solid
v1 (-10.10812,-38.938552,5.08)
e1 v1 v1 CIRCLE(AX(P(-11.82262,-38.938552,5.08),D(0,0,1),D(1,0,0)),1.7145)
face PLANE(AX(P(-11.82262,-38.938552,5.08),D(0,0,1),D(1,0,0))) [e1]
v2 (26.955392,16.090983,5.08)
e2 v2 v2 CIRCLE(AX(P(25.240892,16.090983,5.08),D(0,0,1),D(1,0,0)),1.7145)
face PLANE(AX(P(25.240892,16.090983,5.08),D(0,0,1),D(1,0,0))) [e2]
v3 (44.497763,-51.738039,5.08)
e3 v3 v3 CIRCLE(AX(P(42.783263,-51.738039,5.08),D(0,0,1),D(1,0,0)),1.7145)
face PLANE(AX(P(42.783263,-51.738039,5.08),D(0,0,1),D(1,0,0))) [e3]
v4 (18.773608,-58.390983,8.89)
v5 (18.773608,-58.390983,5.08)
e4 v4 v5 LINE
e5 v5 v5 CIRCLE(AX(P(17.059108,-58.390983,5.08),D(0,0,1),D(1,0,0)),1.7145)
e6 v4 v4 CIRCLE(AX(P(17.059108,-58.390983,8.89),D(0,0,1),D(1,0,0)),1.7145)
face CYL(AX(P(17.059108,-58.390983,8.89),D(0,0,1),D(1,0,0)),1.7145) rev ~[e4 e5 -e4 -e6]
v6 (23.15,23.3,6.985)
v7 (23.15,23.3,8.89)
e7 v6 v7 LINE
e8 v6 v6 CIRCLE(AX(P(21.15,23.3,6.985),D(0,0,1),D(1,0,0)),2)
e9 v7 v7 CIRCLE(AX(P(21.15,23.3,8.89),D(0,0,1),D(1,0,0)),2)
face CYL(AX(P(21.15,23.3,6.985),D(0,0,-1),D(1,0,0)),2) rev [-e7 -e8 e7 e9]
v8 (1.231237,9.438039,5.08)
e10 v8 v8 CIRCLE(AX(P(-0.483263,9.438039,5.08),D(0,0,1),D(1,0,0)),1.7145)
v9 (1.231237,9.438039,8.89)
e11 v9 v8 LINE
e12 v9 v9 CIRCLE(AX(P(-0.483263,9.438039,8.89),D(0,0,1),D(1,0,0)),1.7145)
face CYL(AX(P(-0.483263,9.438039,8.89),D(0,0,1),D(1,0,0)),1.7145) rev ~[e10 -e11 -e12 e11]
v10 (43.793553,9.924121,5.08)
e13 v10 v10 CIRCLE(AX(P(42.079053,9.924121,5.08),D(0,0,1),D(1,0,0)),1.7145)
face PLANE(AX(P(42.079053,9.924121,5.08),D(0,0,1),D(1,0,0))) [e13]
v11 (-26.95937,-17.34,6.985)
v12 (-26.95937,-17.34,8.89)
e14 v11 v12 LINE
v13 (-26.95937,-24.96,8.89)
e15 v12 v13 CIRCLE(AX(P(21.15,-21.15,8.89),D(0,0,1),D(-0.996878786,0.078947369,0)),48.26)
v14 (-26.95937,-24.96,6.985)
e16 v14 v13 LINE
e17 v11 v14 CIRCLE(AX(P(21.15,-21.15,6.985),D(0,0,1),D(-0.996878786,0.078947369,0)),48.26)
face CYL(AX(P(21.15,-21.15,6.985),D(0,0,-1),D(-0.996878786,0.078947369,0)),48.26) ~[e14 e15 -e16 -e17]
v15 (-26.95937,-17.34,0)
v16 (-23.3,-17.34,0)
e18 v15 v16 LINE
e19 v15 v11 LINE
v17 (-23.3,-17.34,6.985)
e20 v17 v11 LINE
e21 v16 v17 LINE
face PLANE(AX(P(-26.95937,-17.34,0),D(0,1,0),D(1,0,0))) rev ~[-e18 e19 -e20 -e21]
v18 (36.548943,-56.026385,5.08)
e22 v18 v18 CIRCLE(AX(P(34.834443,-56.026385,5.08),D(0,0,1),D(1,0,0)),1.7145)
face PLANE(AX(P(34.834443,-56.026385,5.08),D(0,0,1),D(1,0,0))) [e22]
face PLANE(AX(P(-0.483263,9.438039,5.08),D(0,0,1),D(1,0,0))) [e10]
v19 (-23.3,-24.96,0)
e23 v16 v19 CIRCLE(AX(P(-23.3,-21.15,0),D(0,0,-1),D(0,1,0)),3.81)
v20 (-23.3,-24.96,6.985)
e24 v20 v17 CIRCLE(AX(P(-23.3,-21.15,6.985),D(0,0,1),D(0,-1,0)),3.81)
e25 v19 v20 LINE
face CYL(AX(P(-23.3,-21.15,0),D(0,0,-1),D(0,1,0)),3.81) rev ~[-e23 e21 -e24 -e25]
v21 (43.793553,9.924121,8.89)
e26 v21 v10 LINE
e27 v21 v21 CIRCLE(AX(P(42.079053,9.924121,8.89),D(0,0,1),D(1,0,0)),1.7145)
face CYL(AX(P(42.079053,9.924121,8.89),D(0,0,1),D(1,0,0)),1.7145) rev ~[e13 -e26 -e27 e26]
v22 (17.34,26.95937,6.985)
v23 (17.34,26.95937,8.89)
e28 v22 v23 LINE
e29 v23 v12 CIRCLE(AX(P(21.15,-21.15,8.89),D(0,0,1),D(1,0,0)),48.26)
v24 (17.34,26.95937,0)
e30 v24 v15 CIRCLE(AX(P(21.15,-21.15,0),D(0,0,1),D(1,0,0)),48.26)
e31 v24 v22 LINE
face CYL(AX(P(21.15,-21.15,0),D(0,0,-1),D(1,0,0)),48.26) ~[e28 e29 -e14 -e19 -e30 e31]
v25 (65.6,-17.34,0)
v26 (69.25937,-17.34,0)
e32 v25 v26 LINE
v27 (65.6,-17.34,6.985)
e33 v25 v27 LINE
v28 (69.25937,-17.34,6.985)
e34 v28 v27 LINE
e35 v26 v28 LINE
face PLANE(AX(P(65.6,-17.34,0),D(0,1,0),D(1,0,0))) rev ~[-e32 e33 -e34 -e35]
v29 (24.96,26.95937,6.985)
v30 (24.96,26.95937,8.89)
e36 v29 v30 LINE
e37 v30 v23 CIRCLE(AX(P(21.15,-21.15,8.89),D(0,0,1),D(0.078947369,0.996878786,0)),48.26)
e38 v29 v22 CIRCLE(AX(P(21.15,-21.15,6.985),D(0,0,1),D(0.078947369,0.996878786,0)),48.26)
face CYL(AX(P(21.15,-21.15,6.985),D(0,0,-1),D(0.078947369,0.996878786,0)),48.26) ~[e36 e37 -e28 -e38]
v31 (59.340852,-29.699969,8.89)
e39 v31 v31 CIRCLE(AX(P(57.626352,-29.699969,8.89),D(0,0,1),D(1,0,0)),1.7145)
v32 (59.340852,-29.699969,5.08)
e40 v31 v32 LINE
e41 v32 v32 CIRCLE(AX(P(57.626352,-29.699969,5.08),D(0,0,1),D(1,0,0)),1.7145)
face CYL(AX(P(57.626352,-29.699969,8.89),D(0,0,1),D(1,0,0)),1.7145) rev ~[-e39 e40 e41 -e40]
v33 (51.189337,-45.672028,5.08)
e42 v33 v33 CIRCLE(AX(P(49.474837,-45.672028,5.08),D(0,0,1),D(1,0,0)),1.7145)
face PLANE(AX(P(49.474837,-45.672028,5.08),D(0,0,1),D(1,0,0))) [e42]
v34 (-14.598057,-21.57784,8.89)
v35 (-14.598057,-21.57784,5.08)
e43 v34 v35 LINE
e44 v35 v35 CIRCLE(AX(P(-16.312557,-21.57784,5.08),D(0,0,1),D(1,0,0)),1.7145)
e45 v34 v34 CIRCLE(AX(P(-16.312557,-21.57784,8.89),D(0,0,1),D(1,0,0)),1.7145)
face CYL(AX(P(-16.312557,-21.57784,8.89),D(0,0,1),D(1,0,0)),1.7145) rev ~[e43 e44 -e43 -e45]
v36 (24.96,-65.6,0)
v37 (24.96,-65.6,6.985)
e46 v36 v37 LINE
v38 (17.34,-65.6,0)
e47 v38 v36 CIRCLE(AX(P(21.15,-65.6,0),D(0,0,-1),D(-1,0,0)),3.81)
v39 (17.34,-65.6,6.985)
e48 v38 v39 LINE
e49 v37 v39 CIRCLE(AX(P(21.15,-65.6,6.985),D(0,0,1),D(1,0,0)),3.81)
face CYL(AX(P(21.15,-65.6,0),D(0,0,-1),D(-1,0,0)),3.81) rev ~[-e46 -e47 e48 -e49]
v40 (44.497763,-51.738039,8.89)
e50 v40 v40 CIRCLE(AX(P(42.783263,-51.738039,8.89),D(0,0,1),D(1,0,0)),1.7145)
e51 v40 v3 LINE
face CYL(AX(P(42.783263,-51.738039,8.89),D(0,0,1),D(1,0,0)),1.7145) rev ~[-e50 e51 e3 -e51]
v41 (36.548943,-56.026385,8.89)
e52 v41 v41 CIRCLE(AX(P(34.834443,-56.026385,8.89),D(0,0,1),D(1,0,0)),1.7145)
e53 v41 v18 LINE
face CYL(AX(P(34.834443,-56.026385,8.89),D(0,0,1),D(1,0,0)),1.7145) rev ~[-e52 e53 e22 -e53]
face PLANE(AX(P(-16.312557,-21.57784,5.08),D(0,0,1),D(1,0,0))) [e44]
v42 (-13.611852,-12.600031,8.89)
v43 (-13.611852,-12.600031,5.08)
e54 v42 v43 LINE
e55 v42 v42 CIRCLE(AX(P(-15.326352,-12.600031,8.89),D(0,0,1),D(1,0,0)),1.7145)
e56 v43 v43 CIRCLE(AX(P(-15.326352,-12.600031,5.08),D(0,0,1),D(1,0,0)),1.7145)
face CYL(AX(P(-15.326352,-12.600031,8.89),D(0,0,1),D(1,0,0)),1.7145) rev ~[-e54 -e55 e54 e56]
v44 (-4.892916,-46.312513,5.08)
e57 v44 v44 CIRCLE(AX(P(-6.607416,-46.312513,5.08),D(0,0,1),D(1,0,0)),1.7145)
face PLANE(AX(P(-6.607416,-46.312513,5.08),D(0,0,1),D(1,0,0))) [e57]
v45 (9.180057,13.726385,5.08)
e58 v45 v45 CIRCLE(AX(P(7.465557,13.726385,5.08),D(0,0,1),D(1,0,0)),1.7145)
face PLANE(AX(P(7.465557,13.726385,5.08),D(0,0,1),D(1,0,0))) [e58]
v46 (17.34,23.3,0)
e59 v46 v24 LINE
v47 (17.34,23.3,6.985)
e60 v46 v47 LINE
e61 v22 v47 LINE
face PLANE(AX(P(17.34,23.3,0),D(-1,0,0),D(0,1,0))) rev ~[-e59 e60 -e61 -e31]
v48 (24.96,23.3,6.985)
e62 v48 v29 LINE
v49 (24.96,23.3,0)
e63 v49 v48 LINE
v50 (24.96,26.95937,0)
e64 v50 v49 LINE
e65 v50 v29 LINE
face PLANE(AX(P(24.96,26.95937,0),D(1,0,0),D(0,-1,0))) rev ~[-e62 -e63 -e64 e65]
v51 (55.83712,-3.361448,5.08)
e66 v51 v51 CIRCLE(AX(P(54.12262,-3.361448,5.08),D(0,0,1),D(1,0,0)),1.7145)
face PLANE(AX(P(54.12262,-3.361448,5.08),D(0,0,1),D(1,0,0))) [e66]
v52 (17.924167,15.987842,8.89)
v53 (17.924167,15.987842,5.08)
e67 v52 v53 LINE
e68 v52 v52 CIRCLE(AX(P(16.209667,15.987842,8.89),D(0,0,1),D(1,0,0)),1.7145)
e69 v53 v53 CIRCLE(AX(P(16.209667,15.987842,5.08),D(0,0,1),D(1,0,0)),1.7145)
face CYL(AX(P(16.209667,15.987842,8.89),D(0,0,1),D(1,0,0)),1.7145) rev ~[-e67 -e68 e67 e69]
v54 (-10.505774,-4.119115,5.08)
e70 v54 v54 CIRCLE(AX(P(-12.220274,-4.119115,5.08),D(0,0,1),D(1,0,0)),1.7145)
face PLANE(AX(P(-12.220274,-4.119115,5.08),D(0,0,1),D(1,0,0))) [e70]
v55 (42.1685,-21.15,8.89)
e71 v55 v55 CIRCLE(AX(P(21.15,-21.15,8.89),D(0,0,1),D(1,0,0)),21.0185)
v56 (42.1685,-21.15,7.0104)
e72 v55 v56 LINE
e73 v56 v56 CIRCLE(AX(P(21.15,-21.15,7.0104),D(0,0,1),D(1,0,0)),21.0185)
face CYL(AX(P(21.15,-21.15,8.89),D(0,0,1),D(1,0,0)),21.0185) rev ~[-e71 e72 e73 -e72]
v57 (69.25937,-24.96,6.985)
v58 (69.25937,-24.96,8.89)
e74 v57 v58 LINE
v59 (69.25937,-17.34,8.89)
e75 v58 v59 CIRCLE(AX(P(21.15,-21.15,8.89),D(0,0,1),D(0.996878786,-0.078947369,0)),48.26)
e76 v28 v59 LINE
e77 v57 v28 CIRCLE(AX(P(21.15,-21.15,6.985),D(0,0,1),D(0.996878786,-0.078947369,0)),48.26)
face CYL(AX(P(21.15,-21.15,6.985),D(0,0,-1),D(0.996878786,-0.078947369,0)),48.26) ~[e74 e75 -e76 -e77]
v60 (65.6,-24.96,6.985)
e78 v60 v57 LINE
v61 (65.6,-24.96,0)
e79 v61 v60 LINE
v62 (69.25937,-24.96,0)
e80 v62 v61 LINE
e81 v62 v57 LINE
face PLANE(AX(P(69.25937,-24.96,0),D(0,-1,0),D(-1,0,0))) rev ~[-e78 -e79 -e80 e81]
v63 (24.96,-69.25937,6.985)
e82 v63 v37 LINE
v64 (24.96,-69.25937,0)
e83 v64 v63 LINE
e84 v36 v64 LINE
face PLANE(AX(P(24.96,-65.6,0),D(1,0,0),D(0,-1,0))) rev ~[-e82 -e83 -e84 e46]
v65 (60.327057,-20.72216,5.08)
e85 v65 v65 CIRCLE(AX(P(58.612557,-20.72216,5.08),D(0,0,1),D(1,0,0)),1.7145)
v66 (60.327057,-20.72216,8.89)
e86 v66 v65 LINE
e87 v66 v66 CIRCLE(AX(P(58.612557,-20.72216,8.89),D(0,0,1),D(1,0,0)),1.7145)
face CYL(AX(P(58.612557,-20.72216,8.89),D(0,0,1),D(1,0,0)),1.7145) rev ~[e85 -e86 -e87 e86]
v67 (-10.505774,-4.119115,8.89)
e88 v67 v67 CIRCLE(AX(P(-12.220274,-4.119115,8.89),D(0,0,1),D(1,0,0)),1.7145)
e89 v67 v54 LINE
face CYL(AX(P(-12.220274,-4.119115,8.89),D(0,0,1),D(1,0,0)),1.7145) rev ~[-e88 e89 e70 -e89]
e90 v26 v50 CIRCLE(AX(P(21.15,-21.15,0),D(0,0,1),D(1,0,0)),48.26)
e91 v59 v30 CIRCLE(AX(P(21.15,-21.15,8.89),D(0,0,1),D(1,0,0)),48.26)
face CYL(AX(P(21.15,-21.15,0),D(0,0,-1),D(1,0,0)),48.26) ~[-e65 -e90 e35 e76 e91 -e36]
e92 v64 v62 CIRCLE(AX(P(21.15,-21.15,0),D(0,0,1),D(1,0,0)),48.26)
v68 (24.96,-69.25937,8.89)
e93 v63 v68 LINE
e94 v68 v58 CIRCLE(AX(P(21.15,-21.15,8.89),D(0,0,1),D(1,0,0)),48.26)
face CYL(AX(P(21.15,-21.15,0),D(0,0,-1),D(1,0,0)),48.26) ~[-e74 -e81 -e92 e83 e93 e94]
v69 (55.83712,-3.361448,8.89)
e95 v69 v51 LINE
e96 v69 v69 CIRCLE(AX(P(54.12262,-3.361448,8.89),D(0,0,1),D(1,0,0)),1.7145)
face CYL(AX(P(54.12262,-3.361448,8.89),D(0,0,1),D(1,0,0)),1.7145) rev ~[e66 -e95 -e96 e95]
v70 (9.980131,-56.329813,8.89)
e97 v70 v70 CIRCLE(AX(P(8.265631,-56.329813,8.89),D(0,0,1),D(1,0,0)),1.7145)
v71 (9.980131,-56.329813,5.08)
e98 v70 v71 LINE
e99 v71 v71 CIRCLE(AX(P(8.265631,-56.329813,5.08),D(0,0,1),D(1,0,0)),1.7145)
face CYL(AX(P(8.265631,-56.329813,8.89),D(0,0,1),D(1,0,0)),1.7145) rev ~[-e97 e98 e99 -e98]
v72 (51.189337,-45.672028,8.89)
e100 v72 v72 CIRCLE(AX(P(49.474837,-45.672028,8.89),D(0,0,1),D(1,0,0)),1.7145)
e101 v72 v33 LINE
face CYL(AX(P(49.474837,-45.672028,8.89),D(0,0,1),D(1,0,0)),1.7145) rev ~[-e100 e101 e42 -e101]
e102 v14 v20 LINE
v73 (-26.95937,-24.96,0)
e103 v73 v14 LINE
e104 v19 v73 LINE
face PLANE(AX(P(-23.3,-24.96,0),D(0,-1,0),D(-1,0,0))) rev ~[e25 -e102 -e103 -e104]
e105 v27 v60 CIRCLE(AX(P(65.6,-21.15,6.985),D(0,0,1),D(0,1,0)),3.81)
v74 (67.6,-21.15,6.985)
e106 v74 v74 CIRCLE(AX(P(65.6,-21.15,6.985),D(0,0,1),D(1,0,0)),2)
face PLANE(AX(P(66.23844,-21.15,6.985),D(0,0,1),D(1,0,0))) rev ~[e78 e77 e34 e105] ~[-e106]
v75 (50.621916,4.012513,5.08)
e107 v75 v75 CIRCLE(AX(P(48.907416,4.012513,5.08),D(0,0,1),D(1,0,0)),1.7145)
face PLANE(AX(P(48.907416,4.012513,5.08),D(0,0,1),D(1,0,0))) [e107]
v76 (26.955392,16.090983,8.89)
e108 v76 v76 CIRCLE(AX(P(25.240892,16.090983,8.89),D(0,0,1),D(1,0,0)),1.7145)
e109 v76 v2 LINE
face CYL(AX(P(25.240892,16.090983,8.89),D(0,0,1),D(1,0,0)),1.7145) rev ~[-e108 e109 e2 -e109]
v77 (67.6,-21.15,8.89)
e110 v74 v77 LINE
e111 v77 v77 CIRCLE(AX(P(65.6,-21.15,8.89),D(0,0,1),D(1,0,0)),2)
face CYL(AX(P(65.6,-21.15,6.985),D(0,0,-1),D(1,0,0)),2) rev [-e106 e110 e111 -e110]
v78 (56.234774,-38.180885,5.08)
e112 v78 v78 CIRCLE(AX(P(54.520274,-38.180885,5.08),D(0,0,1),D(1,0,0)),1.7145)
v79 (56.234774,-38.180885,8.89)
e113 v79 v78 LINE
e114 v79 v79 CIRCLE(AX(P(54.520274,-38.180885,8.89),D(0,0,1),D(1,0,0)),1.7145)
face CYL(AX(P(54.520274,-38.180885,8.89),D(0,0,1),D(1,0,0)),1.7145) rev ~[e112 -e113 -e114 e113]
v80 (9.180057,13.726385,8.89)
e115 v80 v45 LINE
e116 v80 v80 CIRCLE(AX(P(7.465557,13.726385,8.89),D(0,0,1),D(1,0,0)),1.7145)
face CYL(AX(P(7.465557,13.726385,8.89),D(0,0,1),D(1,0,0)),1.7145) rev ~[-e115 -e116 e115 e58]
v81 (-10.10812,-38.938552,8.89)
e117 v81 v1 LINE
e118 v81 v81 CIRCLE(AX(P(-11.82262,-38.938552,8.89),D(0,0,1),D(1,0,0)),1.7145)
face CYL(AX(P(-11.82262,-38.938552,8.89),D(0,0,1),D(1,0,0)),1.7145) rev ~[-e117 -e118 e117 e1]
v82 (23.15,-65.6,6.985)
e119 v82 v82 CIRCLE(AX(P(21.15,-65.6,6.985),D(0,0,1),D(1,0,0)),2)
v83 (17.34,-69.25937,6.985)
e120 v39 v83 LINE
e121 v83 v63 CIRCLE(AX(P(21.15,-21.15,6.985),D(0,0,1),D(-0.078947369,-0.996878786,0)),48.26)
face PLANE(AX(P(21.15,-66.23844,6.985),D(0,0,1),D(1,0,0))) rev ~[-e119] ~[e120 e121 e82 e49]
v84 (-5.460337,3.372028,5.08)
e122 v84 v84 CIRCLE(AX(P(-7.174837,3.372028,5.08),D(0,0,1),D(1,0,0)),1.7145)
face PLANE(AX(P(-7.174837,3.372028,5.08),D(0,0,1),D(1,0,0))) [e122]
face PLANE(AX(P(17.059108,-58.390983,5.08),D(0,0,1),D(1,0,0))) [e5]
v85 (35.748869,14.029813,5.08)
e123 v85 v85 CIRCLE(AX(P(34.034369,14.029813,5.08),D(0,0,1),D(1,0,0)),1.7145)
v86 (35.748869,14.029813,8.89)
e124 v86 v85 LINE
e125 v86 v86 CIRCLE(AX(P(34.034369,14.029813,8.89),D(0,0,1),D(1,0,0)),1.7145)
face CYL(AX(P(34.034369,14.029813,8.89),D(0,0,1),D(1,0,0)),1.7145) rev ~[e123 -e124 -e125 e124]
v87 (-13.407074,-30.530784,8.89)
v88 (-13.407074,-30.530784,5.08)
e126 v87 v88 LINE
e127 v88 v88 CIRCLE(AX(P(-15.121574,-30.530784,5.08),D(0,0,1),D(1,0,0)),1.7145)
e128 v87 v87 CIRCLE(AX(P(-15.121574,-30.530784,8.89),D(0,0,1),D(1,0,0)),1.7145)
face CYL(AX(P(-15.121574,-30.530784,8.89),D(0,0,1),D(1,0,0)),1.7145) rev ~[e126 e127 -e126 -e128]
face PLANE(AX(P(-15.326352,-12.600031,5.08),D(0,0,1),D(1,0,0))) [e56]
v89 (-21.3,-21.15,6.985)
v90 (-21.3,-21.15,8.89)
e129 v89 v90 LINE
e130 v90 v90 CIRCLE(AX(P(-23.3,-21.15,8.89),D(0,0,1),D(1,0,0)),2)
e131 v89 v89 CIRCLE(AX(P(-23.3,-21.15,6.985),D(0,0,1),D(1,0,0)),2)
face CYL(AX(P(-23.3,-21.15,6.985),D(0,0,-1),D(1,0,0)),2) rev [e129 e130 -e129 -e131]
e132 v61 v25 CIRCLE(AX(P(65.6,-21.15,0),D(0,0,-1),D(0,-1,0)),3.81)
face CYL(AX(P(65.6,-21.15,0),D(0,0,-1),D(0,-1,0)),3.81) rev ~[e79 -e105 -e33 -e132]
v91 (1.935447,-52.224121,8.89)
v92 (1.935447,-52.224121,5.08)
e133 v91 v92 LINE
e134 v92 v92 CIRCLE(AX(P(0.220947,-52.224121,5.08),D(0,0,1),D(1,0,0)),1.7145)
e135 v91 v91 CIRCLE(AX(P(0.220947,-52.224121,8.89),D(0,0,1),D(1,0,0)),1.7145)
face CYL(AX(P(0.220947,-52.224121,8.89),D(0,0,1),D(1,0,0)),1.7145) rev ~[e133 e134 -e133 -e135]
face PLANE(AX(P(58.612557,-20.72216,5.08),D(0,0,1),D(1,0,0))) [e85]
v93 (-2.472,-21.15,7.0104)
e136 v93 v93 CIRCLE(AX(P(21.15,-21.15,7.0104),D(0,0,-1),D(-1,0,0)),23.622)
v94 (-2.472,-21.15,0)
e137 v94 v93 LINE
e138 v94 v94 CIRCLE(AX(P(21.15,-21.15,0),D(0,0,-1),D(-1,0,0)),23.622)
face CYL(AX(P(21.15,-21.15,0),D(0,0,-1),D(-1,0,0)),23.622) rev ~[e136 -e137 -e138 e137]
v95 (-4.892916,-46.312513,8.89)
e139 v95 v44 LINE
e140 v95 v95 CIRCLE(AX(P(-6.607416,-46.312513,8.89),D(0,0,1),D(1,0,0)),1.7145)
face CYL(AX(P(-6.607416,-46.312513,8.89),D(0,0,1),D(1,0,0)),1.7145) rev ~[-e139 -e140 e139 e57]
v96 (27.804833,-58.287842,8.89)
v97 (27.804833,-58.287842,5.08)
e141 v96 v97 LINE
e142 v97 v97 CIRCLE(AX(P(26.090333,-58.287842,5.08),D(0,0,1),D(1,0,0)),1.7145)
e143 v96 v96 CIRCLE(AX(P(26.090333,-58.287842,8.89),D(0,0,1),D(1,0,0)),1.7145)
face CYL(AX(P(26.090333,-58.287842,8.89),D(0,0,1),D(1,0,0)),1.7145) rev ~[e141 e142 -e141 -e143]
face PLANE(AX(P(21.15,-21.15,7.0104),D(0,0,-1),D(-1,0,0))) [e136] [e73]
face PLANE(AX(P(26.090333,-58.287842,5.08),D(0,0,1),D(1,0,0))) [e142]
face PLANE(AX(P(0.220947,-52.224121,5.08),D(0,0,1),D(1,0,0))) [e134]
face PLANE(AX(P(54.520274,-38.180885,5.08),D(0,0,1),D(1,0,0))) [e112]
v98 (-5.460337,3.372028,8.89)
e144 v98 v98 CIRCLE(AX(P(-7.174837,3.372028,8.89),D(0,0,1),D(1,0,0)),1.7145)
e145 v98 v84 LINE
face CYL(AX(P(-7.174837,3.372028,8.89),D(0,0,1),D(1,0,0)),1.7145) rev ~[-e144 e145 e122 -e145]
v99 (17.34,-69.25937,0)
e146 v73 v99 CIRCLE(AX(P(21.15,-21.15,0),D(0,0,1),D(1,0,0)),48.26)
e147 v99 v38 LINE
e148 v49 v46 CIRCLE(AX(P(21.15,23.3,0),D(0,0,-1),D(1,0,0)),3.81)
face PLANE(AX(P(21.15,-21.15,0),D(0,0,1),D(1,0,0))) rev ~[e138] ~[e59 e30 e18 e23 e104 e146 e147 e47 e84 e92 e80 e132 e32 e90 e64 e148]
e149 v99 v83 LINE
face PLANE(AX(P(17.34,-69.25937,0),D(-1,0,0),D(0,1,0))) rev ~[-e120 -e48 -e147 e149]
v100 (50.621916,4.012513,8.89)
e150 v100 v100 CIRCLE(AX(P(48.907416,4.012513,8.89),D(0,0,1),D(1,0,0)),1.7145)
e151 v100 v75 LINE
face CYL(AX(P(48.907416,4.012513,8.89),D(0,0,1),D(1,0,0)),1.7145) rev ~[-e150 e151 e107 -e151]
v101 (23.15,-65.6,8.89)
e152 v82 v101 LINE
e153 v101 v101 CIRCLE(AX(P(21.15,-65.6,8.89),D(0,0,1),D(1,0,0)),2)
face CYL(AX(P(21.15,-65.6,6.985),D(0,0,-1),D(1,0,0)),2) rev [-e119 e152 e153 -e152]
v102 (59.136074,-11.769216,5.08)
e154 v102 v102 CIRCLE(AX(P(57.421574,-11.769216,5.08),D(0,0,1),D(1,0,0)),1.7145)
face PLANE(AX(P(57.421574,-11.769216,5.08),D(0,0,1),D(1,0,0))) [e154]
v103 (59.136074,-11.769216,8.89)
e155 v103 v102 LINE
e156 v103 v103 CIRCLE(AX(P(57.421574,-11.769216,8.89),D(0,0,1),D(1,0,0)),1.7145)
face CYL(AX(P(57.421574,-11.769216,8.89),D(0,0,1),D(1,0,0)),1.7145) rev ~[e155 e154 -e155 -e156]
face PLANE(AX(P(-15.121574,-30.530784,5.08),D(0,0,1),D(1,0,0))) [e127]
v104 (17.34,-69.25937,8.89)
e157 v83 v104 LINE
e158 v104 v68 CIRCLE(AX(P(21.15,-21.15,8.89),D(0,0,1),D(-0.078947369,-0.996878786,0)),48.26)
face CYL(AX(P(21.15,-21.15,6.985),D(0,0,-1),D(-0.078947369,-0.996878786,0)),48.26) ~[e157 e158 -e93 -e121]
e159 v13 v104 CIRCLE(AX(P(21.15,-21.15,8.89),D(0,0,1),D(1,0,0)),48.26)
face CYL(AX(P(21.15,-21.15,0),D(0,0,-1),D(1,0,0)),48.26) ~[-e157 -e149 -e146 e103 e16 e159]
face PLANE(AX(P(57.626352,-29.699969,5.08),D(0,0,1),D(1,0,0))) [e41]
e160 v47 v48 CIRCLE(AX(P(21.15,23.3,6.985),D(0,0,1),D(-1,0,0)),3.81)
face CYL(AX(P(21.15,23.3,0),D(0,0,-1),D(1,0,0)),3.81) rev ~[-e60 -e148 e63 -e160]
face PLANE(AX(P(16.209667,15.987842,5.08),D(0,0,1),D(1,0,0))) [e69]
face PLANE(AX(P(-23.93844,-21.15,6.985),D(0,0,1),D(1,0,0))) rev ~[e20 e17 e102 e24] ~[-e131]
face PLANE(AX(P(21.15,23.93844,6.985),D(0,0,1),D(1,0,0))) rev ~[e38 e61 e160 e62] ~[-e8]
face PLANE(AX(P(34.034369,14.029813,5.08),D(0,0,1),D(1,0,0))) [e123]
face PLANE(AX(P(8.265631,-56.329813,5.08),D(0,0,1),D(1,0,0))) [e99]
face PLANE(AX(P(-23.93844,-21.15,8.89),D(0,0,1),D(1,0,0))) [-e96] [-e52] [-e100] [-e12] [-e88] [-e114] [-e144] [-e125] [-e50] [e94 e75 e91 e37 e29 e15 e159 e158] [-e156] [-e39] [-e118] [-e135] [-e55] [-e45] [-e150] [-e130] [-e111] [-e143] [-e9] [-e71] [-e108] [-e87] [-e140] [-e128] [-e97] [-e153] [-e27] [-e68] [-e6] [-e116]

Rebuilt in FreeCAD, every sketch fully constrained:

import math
import FreeCAD as App
import Part
import Sketcher
Q = App.Units.Quantity

doc = App.newDocument("Part")
body = doc.addObject("PartDesign::Body", "Body")

# Sketch on XY plane
sketch1 = body.newObject("Sketcher::SketchObject", "Sketch")
sketch1.AttachmentSupport = (doc.getObject("XY_Plane"), [""])
sketch1.MapMode = "FlatFace"
sketch1.addGeometry(Part.Circle(App.Vector(21, -21, 0), App.Vector(0, 0, 1), 48), False)
sketch1.addConstraint(Sketcher.Constraint("Diameter", 0, Q("3.8 in")))
sketch1.addConstraint(Sketcher.Constraint("DistanceX", -1, 1, 0, 3, 21.15))
sketch1.addConstraint(Sketcher.Constraint("DistanceY", 0, 3, -1, 1, 21.15))
pad1 = body.newObject("PartDesign::Pad", "Pad")
pad1.Profile = sketch1
pad1.Length = Q("0.35 in")

# Sketch on XY plane
sketch2 = body.newObject("Sketcher::SketchObject", "Sketch001")
sketch2.AttachmentSupport = (doc.getObject("XY_Plane"), [""])
sketch2.MapMode = "FlatFace"
sketch2.AttachmentOffset = App.Placement(App.Vector(0, 0, 0.35 * 25.4), App.Rotation())
sketch2.addGeometry(Part.Circle(App.Vector(25.2, 16.1, 0), App.Vector(0, 0, 1), 1.7), False)
sketch2.addGeometry(Part.Circle(App.Vector(34, 14, 0), App.Vector(0, 0, 1), 1.7), False)
sketch2.addGeometry(Part.Circle(App.Vector(42.1, 9.9, 0), App.Vector(0, 0, 1), 1.7), False)
sketch2.addGeometry(Part.Circle(App.Vector(48.9, 4, 0), App.Vector(0, 0, 1), 1.7), False)
sketch2.addGeometry(Part.Circle(App.Vector(54.1, -3.4, 0), App.Vector(0, 0, 1), 1.7), False)
sketch2.addGeometry(Part.Circle(App.Vector(57.4, -11.8, 0), App.Vector(0, 0, 1), 1.7), False)
sketch2.addGeometry(Part.Circle(App.Vector(58.6, -20.7, 0), App.Vector(0, 0, 1), 1.7), False)
sketch2.addGeometry(Part.Circle(App.Vector(57.6, -29.7, 0), App.Vector(0, 0, 1), 1.7), False)
sketch2.addGeometry(Part.Circle(App.Vector(54.5, -38.2, 0), App.Vector(0, 0, 1), 1.7), False)
sketch2.addGeometry(Part.Circle(App.Vector(49.5, -45.7, 0), App.Vector(0, 0, 1), 1.7), False)
sketch2.addGeometry(Part.Circle(App.Vector(42.8, -51.7, 0), App.Vector(0, 0, 1), 1.7), False)
sketch2.addGeometry(Part.Circle(App.Vector(34.8, -56, 0), App.Vector(0, 0, 1), 1.7), False)
sketch2.addGeometry(Part.Circle(App.Vector(26.1, -58.3, 0), App.Vector(0, 0, 1), 1.7), False)
sketch2.addGeometry(Part.Circle(App.Vector(17.1, -58.4, 0), App.Vector(0, 0, 1), 1.7), False)
sketch2.addGeometry(Part.Circle(App.Vector(8.3, -56.3, 0), App.Vector(0, 0, 1), 1.7), False)
sketch2.addGeometry(Part.Circle(App.Vector(0.2, -52.2, 0), App.Vector(0, 0, 1), 1.7), False)
sketch2.addGeometry(Part.Circle(App.Vector(-6.6, -46.3, 0), App.Vector(0, 0, 1), 1.7), False)
sketch2.addGeometry(Part.Circle(App.Vector(-11.8, -38.9, 0), App.Vector(0, 0, 1), 1.7), False)
sketch2.addGeometry(Part.Circle(App.Vector(-15.1, -30.5, 0), App.Vector(0, 0, 1), 1.7), False)
sketch2.addGeometry(Part.Circle(App.Vector(-16.3, -21.6, 0), App.Vector(0, 0, 1), 1.7), False)
sketch2.addGeometry(Part.Circle(App.Vector(-15.3, -12.6, 0), App.Vector(0, 0, 1), 1.7), False)
sketch2.addGeometry(Part.Circle(App.Vector(-12.2, -4.1, 0), App.Vector(0, 0, 1), 1.7), False)
sketch2.addGeometry(Part.Circle(App.Vector(-7.2, 3.4, 0), App.Vector(0, 0, 1), 1.7), False)
sketch2.addGeometry(Part.Circle(App.Vector(-0.5, 9.4, 0), App.Vector(0, 0, 1), 1.7), False)
sketch2.addGeometry(Part.Circle(App.Vector(7.5, 13.7, 0), App.Vector(0, 0, 1), 1.7), False)
sketch2.addGeometry(Part.Circle(App.Vector(16.2, 16, 0), App.Vector(0, 0, 1), 1.7), False)
sketch2.addConstraint(Sketcher.Constraint("Equal", 0, 1))
sketch2.addConstraint(Sketcher.Constraint("Equal", 1, 2))
sketch2.addConstraint(Sketcher.Constraint("Equal", 2, 3))
sketch2.addConstraint(Sketcher.Constraint("Equal", 3, 4))
sketch2.addConstraint(Sketcher.Constraint("Equal", 4, 5))
sketch2.addConstraint(Sketcher.Constraint("Equal", 5, 6))
sketch2.addConstraint(Sketcher.Constraint("Equal", 6, 7))
sketch2.addConstraint(Sketcher.Constraint("Equal", 7, 8))
sketch2.addConstraint(Sketcher.Constraint("Equal", 8, 9))
sketch2.addConstraint(Sketcher.Constraint("Equal", 9, 10))
sketch2.addConstraint(Sketcher.Constraint("Equal", 10, 11))
sketch2.addConstraint(Sketcher.Constraint("Equal", 11, 12))
sketch2.addConstraint(Sketcher.Constraint("Equal", 12, 13))
sketch2.addConstraint(Sketcher.Constraint("Equal", 13, 14))
sketch2.addConstraint(Sketcher.Constraint("Equal", 14, 15))
sketch2.addConstraint(Sketcher.Constraint("Equal", 15, 16))
sketch2.addConstraint(Sketcher.Constraint("Equal", 16, 17))
sketch2.addConstraint(Sketcher.Constraint("Equal", 17, 18))
sketch2.addConstraint(Sketcher.Constraint("Equal", 18, 19))
sketch2.addConstraint(Sketcher.Constraint("Equal", 19, 20))
sketch2.addConstraint(Sketcher.Constraint("Equal", 20, 21))
sketch2.addConstraint(Sketcher.Constraint("Equal", 21, 22))
sketch2.addConstraint(Sketcher.Constraint("Equal", 22, 23))
sketch2.addConstraint(Sketcher.Constraint("Equal", 23, 24))
sketch2.addConstraint(Sketcher.Constraint("Equal", 24, 25))
sketch2.addConstraint(Sketcher.Constraint("Diameter", 0, Q("0.135 in")))
sketch2.addConstraint(Sketcher.Constraint("DistanceX", 0, 3, 1, 3, Q("0.3461999 in")))
sketch2.addConstraint(Sketcher.Constraint("DistanceX", 14, 3, 13, 3, Q("0.3461999 in")))
sketch2.addConstraint(Sketcher.Constraint("DistanceY", 3, 3, 1, 3, 10.0173))
sketch2.addConstraint(Sketcher.Constraint("DistanceY", 5, 3, 0, 3, 27.860199))
sketch2.addConstraint(Sketcher.Constraint("DistanceX", 2, 3, 7, 3, 15.547299))
sketch2.addConstraint(Sketcher.Constraint("DistanceX", 8, 3, 5, 3, 2.901301))
sketch2.addConstraint(Sketcher.Constraint("DistanceY", 8, 3, 3, 3, 42.193398))
sketch2.addConstraint(Sketcher.Constraint("DistanceY", 11, 3, 8, 3, 17.8455))
sketch2.addConstraint(Sketcher.Constraint("DistanceY", 13, 3, 8, 3, 20.210098))
sketch2.addConstraint(Sketcher.Constraint("DistanceX", 14, 3, 12, 3, 17.824701))
sketch2.addConstraint(Sketcher.Constraint("DistanceY", 14, 3, 16, 3, 10.0173))
sketch2.addConstraint(Sketcher.Constraint("DistanceY", 13, 3, 18, 3, 27.860199))
sketch2.addConstraint(Sketcher.Constraint("DistanceX", 20, 3, 15, 3, 15.547299))
sketch2.addConstraint(Sketcher.Constraint("DistanceX", 18, 3, 21, 3, 2.901301))
sketch2.addConstraint(Sketcher.Constraint("DistanceY", 16, 3, 21, 3, 42.193398))
sketch2.addConstraint(Sketcher.Constraint("DistanceY", 21, 3, 24, 3, 17.8455))
sketch2.addConstraint(Sketcher.Constraint("DistanceX", 25, 3, 1, 3, 17.824701))
sketch2.addConstraint(Sketcher.Constraint("DistanceX", -1, 1, 0, 3, 25.240892))
sketch2.addConstraint(Sketcher.Constraint("DistanceY", -1, 1, 2, 3, 9.924121))
sketch2.addConstraint(Sketcher.Constraint("DistanceX", -1, 1, 4, 3, 54.12262))
sketch2.addConstraint(Sketcher.Constraint("DistanceY", 4, 3, -1, 1, 3.361448))
sketch2.addConstraint(Sketcher.Constraint("DistanceY", 6, 3, -1, 1, 20.72216))
sketch2.addConstraint(Sketcher.Constraint("DistanceX", -1, 1, 7, 3, 57.626352))
sketch2.addConstraint(Sketcher.Constraint("DistanceY", 7, 3, -1, 1, 29.699969))
sketch2.addConstraint(Sketcher.Constraint("DistanceY", 10, 3, -1, 1, 51.738039))
sketch2.addConstraint(Sketcher.Constraint("DistanceX", -1, 1, 13, 3, 17.059108))
sketch2.addConstraint(Sketcher.Constraint("DistanceY", 15, 3, -1, 1, 52.224121))
sketch2.addConstraint(Sketcher.Constraint("DistanceX", 17, 3, -1, 1, 11.82262))
sketch2.addConstraint(Sketcher.Constraint("DistanceY", 17, 3, -1, 1, 38.938552))
sketch2.addConstraint(Sketcher.Constraint("DistanceY", 19, 3, -1, 1, 21.57784))
sketch2.addConstraint(Sketcher.Constraint("DistanceX", 20, 3, -1, 1, 15.326352))
sketch2.addConstraint(Sketcher.Constraint("DistanceY", 20, 3, -1, 1, 12.600031))
sketch2.addConstraint(Sketcher.Constraint("DistanceY", -1, 1, 23, 3, 9.438039))
sketch2.addConstraint(Sketcher.Constraint("DistanceY", 1, 3, 0, 3, 2.06117))
sketch2.addConstraint(Sketcher.Constraint("DistanceY", 4, 3, 3, 3, 7.373961))
sketch2.addConstraint(Sketcher.Constraint("DistanceX", 3, 3, 5, 3, 8.514158))
sketch2.addConstraint(Sketcher.Constraint("DistanceX", 2, 3, 5, 3, 15.342522))
sketch2.addConstraint(Sketcher.Constraint("DistanceX", 3, 3, 6, 3, 9.705141))
sketch2.addConstraint(Sketcher.Constraint("DistanceY", 9, 3, 7, 3, 15.972059))
sketch2.addConstraint(Sketcher.Constraint("DistanceX", 9, 3, 6, 3, 9.13772))
sketch2.addConstraint(Sketcher.Constraint("DistanceX", 10, 3, 8, 3, 11.737011))
sketch2.addConstraint(Sketcher.Constraint("DistanceX", 11, 3, 10, 3, 7.94882))
sketch2.addConstraint(Sketcher.Constraint("DistanceY", 13, 3, 12, 3, 0.103141))
sketch2.addConstraint(Sketcher.Constraint("DistanceY", 13, 3, 14, 3, 2.06117))
sketch2.addConstraint(Sketcher.Constraint("DistanceX", 16, 3, 12, 3, 32.697749))
sketch2.addConstraint(Sketcher.Constraint("DistanceX", 18, 3, 16, 3, 8.514158))
sketch2.addConstraint(Sketcher.Constraint("DistanceX", 19, 3, 16, 3, 9.705141))
sketch2.addConstraint(Sketcher.Constraint("DistanceY", 20, 3, 22, 3, 15.972059))
sketch2.addConstraint(Sketcher.Constraint("DistanceX", 19, 3, 22, 3, 9.13772))
sketch2.addConstraint(Sketcher.Constraint("DistanceX", 21, 3, 23, 3, 11.737011))
sketch2.addConstraint(Sketcher.Constraint("DistanceX", 23, 3, 24, 3, 7.94882))
sketch2.addConstraint(Sketcher.Constraint("DistanceY", 25, 3, 0, 3, 0.103141))
pocket1 = body.newObject("PartDesign::Pocket", "Pocket")
pocket1.Profile = sketch2
pocket1.Length = Q("0.15 in")

# Sketch on XY plane
sketch3 = body.newObject("Sketcher::SketchObject", "Sketch002")
sketch3.AttachmentSupport = (doc.getObject("XY_Plane"), [""])
sketch3.MapMode = "FlatFace"
sketch3.AttachmentOffset = App.Placement(App.Vector(0, 0, 0.35 * 25.4), App.Rotation())
sketch3.addGeometry(Part.Circle(App.Vector(21, -21, 0), App.Vector(0, 0, 1), 21), False)
sketch3.addConstraint(Sketcher.Constraint("Diameter", 0, Q("1.655 in")))
sketch3.addConstraint(Sketcher.Constraint("DistanceX", -1, 1, 0, 3, 21.15))
sketch3.addConstraint(Sketcher.Constraint("DistanceY", 0, 3, -1, 1, 21.15))
pocket2 = body.newObject("PartDesign::Pocket", "Pocket001")
pocket2.Profile = sketch3
pocket2.Length = Q("0.35 in")

# Sketch on XY plane
sketch4 = body.newObject("Sketcher::SketchObject", "Sketch003")
sketch4.AttachmentSupport = (doc.getObject("XY_Plane"), [""])
sketch4.MapMode = "FlatFace"
sketch4.addGeometry(Part.ArcOfCircle(Part.Circle(App.Vector(21.1, 23.3, 0), App.Vector(0, 0, 1), 3.8), math.radians(180), math.radians(360)), False)
sketch4.addGeometry(Part.LineSegment(App.Vector(17.3, 23.3, 0), App.Vector(17.3, 27, 0)), False)
sketch4.addGeometry(Part.ArcOfCircle(Part.Circle(App.Vector(21.1, -21.1, 0), App.Vector(0, 0, 1), 48.3), math.radians(85.47), math.radians(94.53)), False)
sketch4.addGeometry(Part.LineSegment(App.Vector(25, 27, 0), App.Vector(25, 23.3, 0)), False)
sketch4.addGeometry(Part.LineSegment(App.Vector(65.6, -17.3, 0), App.Vector(69.3, -17.3, 0)), False)
sketch4.addGeometry(Part.ArcOfCircle(Part.Circle(App.Vector(21.2, -21.1, 0), App.Vector(0, 0, 1), 48.3), math.radians(-4.53), math.radians(4.53)), False)
sketch4.addGeometry(Part.LineSegment(App.Vector(69.3, -25, 0), App.Vector(65.6, -25, 0)), False)
sketch4.addGeometry(Part.ArcOfCircle(Part.Circle(App.Vector(65.6, -21.1, 0), App.Vector(0, 0, 1), 3.8), math.radians(90), math.radians(270)), False)
sketch4.addGeometry(Part.LineSegment(App.Vector(25, -65.6, 0), App.Vector(25, -69.3, 0)), False)
sketch4.addGeometry(Part.ArcOfCircle(Part.Circle(App.Vector(21.1, -21.2, 0), App.Vector(0, 0, 1), 48.3), math.radians(-94.53), math.radians(-85.47)), False)
sketch4.addGeometry(Part.LineSegment(App.Vector(17.3, -69.3, 0), App.Vector(17.3, -65.6, 0)), False)
sketch4.addGeometry(Part.ArcOfCircle(Part.Circle(App.Vector(21.1, -65.6, 0), App.Vector(0, 0, 1), 3.8), math.radians(0), math.radians(180)), False)
sketch4.addGeometry(Part.ArcOfCircle(Part.Circle(App.Vector(21.1, -21.1, 0), App.Vector(0, 0, 1), 48.3), math.radians(175.47), math.radians(180)), False)
sketch4.addGeometry(Part.LineSegment(App.Vector(-27, -17.3, 0), App.Vector(-23.3, -17.3, 0)), False)
sketch4.addGeometry(Part.ArcOfCircle(Part.Circle(App.Vector(-23.3, -21.1, 0), App.Vector(0, 0, 1), 3.8), math.radians(-90), math.radians(90)), False)
sketch4.addGeometry(Part.LineSegment(App.Vector(-23.3, -25, 0), App.Vector(-27, -25, 0)), False)
sketch4.addGeometry(Part.ArcOfCircle(Part.Circle(App.Vector(21.1, -21.2, 0), App.Vector(0, 0, 1), 48.3), math.radians(180), math.radians(184.53)), False)
sketch4.addConstraint(Sketcher.Constraint("Tangent", 0, 1, 1, 1))
sketch4.addConstraint(Sketcher.Constraint("Coincident", 1, 2, 2, 2))
sketch4.addConstraint(Sketcher.Constraint("Coincident", 2, 1, 3, 1))
sketch4.addConstraint(Sketcher.Constraint("Tangent", 3, 2, 0, 2))
sketch4.addConstraint(Sketcher.Constraint("Coincident", 4, 2, 5, 2))
sketch4.addConstraint(Sketcher.Constraint("Coincident", 5, 1, 6, 1))
sketch4.addConstraint(Sketcher.Constraint("Tangent", 6, 2, 7, 2))
sketch4.addConstraint(Sketcher.Constraint("Tangent", 7, 1, 4, 1))
sketch4.addConstraint(Sketcher.Constraint("Coincident", 8, 2, 9, 2))
sketch4.addConstraint(Sketcher.Constraint("Coincident", 9, 1, 10, 1))
sketch4.addConstraint(Sketcher.Constraint("Tangent", 10, 2, 11, 2))
sketch4.addConstraint(Sketcher.Constraint("Tangent", 11, 1, 8, 1))
sketch4.addConstraint(Sketcher.Constraint("Coincident", 12, 1, 13, 1))
sketch4.addConstraint(Sketcher.Constraint("Tangent", 13, 2, 14, 2))
sketch4.addConstraint(Sketcher.Constraint("Tangent", 14, 1, 15, 1))
sketch4.addConstraint(Sketcher.Constraint("Coincident", 15, 2, 16, 2))
sketch4.addConstraint(Sketcher.Constraint("Tangent", 16, 1, 12, 2))
sketch4.addConstraint(Sketcher.Constraint("Vertical", 1))
sketch4.addConstraint(Sketcher.Constraint("Vertical", 3))
sketch4.addConstraint(Sketcher.Constraint("Horizontal", 4))
sketch4.addConstraint(Sketcher.Constraint("Horizontal", 6))
sketch4.addConstraint(Sketcher.Constraint("Vertical", 8))
sketch4.addConstraint(Sketcher.Constraint("Vertical", 10))
sketch4.addConstraint(Sketcher.Constraint("Horizontal", 13))
sketch4.addConstraint(Sketcher.Constraint("Horizontal", 15))
sketch4.addConstraint(Sketcher.Constraint("Coincident", 5, 3, 2, 3))
sketch4.addConstraint(Sketcher.Constraint("Coincident", 9, 3, 2, 3))
sketch4.addConstraint(Sketcher.Constraint("Coincident", 12, 3, 2, 3))
sketch4.addConstraint(Sketcher.Constraint("Equal", 2, 5))
sketch4.addConstraint(Sketcher.Constraint("Equal", 0, 7))
sketch4.addConstraint(Sketcher.Constraint("Equal", 5, 9))
sketch4.addConstraint(Sketcher.Constraint("Equal", 7, 11))
sketch4.addConstraint(Sketcher.Constraint("Equal", 9, 12))
sketch4.addConstraint(Sketcher.Constraint("Equal", 11, 14))
sketch4.addConstraint(Sketcher.Constraint("Equal", 12, 16))
sketch4.addConstraint(Sketcher.Constraint("Horizontal", 5, 3, 7, 3))
sketch4.addConstraint(Sketcher.Constraint("Horizontal", 12, 3, 14, 3))
sketch4.addConstraint(Sketcher.Constraint("Horizontal", 1, 2, 2, 1))
sketch4.addConstraint(Sketcher.Constraint("Horizontal", 8, 2, 9, 1))
sketch4.addConstraint(Sketcher.Constraint("Horizontal", 14, 3, 16, 1))
sketch4.addConstraint(Sketcher.Constraint("Equal", 6, 13))
sketch4.addConstraint(Sketcher.Constraint("Equal", 15, 1))
sketch4.addConstraint(Sketcher.Constraint("Equal", 3, 8))
sketch4.addConstraint(Sketcher.Constraint("Radius", 2, Q("1.9 in")))
sketch4.addConstraint(Sketcher.Constraint("Radius", 0, Q("0.15 in")))
sketch4.addConstraint(Sketcher.Constraint("DistanceY", 11, 3, 0, 3, Q("3.5 in")))
sketch4.addConstraint(Sketcher.Constraint("DistanceX", -1, 1, 0, 3, 21.15))
sketch4.addConstraint(Sketcher.Constraint("DistanceY", -1, 1, 0, 3, 23.3))
pocket3 = body.newObject("PartDesign::Pocket", "Pocket002")
pocket3.Profile = sketch4
pocket3.Type = "ThroughAll"
pocket3.Reversed = True

# Sketch on XY plane
sketch5 = body.newObject("Sketcher::SketchObject", "Sketch004")
sketch5.AttachmentSupport = (doc.getObject("XY_Plane"), [""])
sketch5.MapMode = "FlatFace"
sketch5.AttachmentOffset = App.Placement(App.Vector(0, 0, 0.275 * 25.4), App.Rotation())
sketch5.addGeometry(Part.ArcOfCircle(Part.Circle(App.Vector(21.1, -21.1, 0), App.Vector(0, 0, 1), 48.3), math.radians(175.47), math.radians(184.53)), False)
sketch5.addGeometry(Part.LineSegment(App.Vector(-27, -25, 0), App.Vector(-23.3, -25, 0)), False)
sketch5.addGeometry(Part.ArcOfCircle(Part.Circle(App.Vector(-23.3, -21.1, 0), App.Vector(0, 0, 1), 3.8), math.radians(-90), math.radians(90)), False)
sketch5.addGeometry(Part.LineSegment(App.Vector(-23.3, -17.3, 0), App.Vector(-27, -17.3, 0)), False)
sketch5.addGeometry(Part.Circle(App.Vector(-23.3, -21.1, 0), App.Vector(0, 0, 1), 2), False)
sketch5.addGeometry(Part.ArcOfCircle(Part.Circle(App.Vector(21.1, -21.1, 0), App.Vector(0, 0, 1), 48.3), math.radians(85.47), math.radians(94.53)), False)
sketch5.addGeometry(Part.LineSegment(App.Vector(17.3, 27, 0), App.Vector(17.3, 23.3, 0)), False)
sketch5.addGeometry(Part.ArcOfCircle(Part.Circle(App.Vector(21.1, 23.3, 0), App.Vector(0, 0, 1), 3.8), math.radians(180), math.radians(360)), False)
sketch5.addGeometry(Part.LineSegment(App.Vector(25, 23.3, 0), App.Vector(25, 27, 0)), False)
sketch5.addGeometry(Part.Circle(App.Vector(21.1, 23.3, 0), App.Vector(0, 0, 1), 2), False)
sketch5.addGeometry(Part.ArcOfCircle(Part.Circle(App.Vector(21.2, -21.1, 0), App.Vector(0, 0, 1), 48.3), math.radians(-4.53), math.radians(4.53)), False)
sketch5.addGeometry(Part.LineSegment(App.Vector(69.3, -17.3, 0), App.Vector(65.6, -17.3, 0)), False)
sketch5.addGeometry(Part.ArcOfCircle(Part.Circle(App.Vector(65.6, -21.1, 0), App.Vector(0, 0, 1), 3.8), math.radians(90), math.radians(270)), False)
sketch5.addGeometry(Part.LineSegment(App.Vector(65.6, -25, 0), App.Vector(69.3, -25, 0)), False)
sketch5.addGeometry(Part.Circle(App.Vector(65.6, -21.1, 0), App.Vector(0, 0, 1), 2), False)
sketch5.addGeometry(Part.ArcOfCircle(Part.Circle(App.Vector(21.1, -21.2, 0), App.Vector(0, 0, 1), 48.3), math.radians(-94.53), math.radians(-85.47)), False)
sketch5.addGeometry(Part.LineSegment(App.Vector(25, -69.3, 0), App.Vector(25, -65.6, 0)), False)
sketch5.addGeometry(Part.ArcOfCircle(Part.Circle(App.Vector(21.1, -65.6, 0), App.Vector(0, 0, 1), 3.8), math.radians(0), math.radians(180)), False)
sketch5.addGeometry(Part.LineSegment(App.Vector(17.3, -65.6, 0), App.Vector(17.3, -69.3, 0)), False)
sketch5.addGeometry(Part.Circle(App.Vector(21.1, -65.6, 0), App.Vector(0, 0, 1), 2), False)
sketch5.addConstraint(Sketcher.Constraint("Coincident", 0, 2, 1, 1))
sketch5.addConstraint(Sketcher.Constraint("Tangent", 1, 2, 2, 1))
sketch5.addConstraint(Sketcher.Constraint("Tangent", 2, 2, 3, 1))
sketch5.addConstraint(Sketcher.Constraint("Coincident", 3, 2, 0, 1))
sketch5.addConstraint(Sketcher.Constraint("Coincident", 5, 2, 6, 1))
sketch5.addConstraint(Sketcher.Constraint("Tangent", 6, 2, 7, 1))
sketch5.addConstraint(Sketcher.Constraint("Tangent", 7, 2, 8, 1))
sketch5.addConstraint(Sketcher.Constraint("Coincident", 8, 2, 5, 1))
sketch5.addConstraint(Sketcher.Constraint("Coincident", 10, 2, 11, 1))
sketch5.addConstraint(Sketcher.Constraint("Tangent", 11, 2, 12, 1))
sketch5.addConstraint(Sketcher.Constraint("Tangent", 12, 2, 13, 1))
sketch5.addConstraint(Sketcher.Constraint("Coincident", 13, 2, 10, 1))
sketch5.addConstraint(Sketcher.Constraint("Coincident", 15, 2, 16, 1))
sketch5.addConstraint(Sketcher.Constraint("Tangent", 16, 2, 17, 1))
sketch5.addConstraint(Sketcher.Constraint("Tangent", 17, 2, 18, 1))
sketch5.addConstraint(Sketcher.Constraint("Coincident", 18, 2, 15, 1))
sketch5.addConstraint(Sketcher.Constraint("Horizontal", 1))
sketch5.addConstraint(Sketcher.Constraint("Horizontal", 3))
sketch5.addConstraint(Sketcher.Constraint("Vertical", 6))
sketch5.addConstraint(Sketcher.Constraint("Vertical", 8))
sketch5.addConstraint(Sketcher.Constraint("Horizontal", 11))
sketch5.addConstraint(Sketcher.Constraint("Horizontal", 13))
sketch5.addConstraint(Sketcher.Constraint("Vertical", 16))
sketch5.addConstraint(Sketcher.Constraint("Vertical", 18))
sketch5.addConstraint(Sketcher.Constraint("Coincident", 4, 3, 2, 3))
sketch5.addConstraint(Sketcher.Constraint("Coincident", 5, 3, 0, 3))
sketch5.addConstraint(Sketcher.Constraint("Coincident", 9, 3, 7, 3))
sketch5.addConstraint(Sketcher.Constraint("Coincident", 10, 3, 0, 3))
sketch5.addConstraint(Sketcher.Constraint("Coincident", 14, 3, 12, 3))
sketch5.addConstraint(Sketcher.Constraint("Coincident", 15, 3, 0, 3))
sketch5.addConstraint(Sketcher.Constraint("Coincident", 19, 3, 17, 3))
sketch5.addConstraint(Sketcher.Constraint("Equal", 0, 5))
sketch5.addConstraint(Sketcher.Constraint("Equal", 2, 7))
sketch5.addConstraint(Sketcher.Constraint("Equal", 4, 9))
sketch5.addConstraint(Sketcher.Constraint("Equal", 5, 10))
sketch5.addConstraint(Sketcher.Constraint("Equal", 7, 12))
sketch5.addConstraint(Sketcher.Constraint("Equal", 9, 14))
sketch5.addConstraint(Sketcher.Constraint("Equal", 10, 15))
sketch5.addConstraint(Sketcher.Constraint("Equal", 12, 17))
sketch5.addConstraint(Sketcher.Constraint("Equal", 14, 19))
sketch5.addConstraint(Sketcher.Constraint("Horizontal", 0, 3, 2, 3))
sketch5.addConstraint(Sketcher.Constraint("Horizontal", 10, 3, 12, 3))
sketch5.addConstraint(Sketcher.Constraint("Horizontal", 5, 2, 8, 2))
sketch5.addConstraint(Sketcher.Constraint("Horizontal", 15, 2, 18, 2))
sketch5.addConstraint(Sketcher.Constraint("Equal", 3, 11))
sketch5.addConstraint(Sketcher.Constraint("Equal", 13, 6))
sketch5.addConstraint(Sketcher.Constraint("Equal", 8, 16))
sketch5.addConstraint(Sketcher.Constraint("Radius", 0, Q("1.9 in")))
sketch5.addConstraint(Sketcher.Constraint("Radius", 2, Q("0.15 in")))
sketch5.addConstraint(Sketcher.Constraint("Diameter", 4, 4.0))
sketch5.addConstraint(Sketcher.Constraint("DistanceX", 2, 3, 0, 3, Q("1.75 in")))
sketch5.addConstraint(Sketcher.Constraint("DistanceX", -1, 1, 0, 3, 21.15))
sketch5.addConstraint(Sketcher.Constraint("DistanceY", 0, 3, -1, 1, 21.15))
pad2 = body.newObject("PartDesign::Pad", "Pad001")
pad2.Profile = sketch5
pad2.Length = Q("0.075 in")

# Sketch on XY plane
sketch6 = body.newObject("Sketcher::SketchObject", "Sketch005")
sketch6.AttachmentSupport = (doc.getObject("XY_Plane"), [""])
sketch6.MapMode = "FlatFace"
sketch6.addGeometry(Part.Circle(App.Vector(21, -21, 0), App.Vector(0, 0, 1), 24), False)
sketch6.addConstraint(Sketcher.Constraint("Diameter", 0, Q("1.86 in")))
sketch6.addConstraint(Sketcher.Constraint("DistanceX", -1, 1, 0, 3, 21.15))
sketch6.addConstraint(Sketcher.Constraint("DistanceY", 0, 3, -1, 1, 21.15))
pocket4 = body.newObject("PartDesign::Pocket", "Pocket003")
pocket4.Profile = sketch6
pocket4.Length = Q("0.276 in")
pocket4.Reversed = True

doc.recompute()
